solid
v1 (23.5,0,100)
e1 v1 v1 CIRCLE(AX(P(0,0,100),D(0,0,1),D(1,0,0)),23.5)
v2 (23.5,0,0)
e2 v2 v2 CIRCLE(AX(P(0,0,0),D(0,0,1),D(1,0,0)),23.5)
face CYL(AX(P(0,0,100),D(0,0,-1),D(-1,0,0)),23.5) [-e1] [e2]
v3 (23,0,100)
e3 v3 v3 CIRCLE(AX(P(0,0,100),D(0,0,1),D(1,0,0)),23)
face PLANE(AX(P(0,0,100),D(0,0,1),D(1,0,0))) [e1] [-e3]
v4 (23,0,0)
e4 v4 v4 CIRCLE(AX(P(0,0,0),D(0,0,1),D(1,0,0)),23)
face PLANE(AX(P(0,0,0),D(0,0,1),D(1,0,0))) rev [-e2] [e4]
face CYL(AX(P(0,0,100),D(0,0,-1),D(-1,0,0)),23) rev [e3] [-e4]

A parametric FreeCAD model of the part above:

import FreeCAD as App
import Part
import Sketcher
from FreeCAD import Vector
Q = App.Units.Quantity

doc = App.newDocument("Part")
body = doc.addObject("PartDesign::Body", "Body")

# Sketch on XY plane
sketch1 = body.newObject("Sketcher::SketchObject", "Sketch")
sketch1.AttachmentSupport = (doc.getObject("XY_Plane"), [""])
sketch1.MapMode = "FlatFace"
sketch1.addGeometry([
    Part.Circle(Vector(0, 0, 0), Vector(0, 0, 1), 23.5),
    Part.Circle(Vector(0, 0, 0), Vector(0, 0, 1), 23),
], False)
sketch1.addConstraint([
    Sketcher.Constraint("Coincident", 0, 3, -1, 1),
    Sketcher.Constraint("Coincident", 1, 3, -1, 1),
    Sketcher.Constraint("Diameter", 0, Q("47 mm")),
    Sketcher.Constraint("Diameter", 1, Q("46 mm")),
])
pad1 = body.newObject("PartDesign::Pad", "Pad")
pad1.Profile = sketch1
pad1.Length = 100

doc.recompute()
